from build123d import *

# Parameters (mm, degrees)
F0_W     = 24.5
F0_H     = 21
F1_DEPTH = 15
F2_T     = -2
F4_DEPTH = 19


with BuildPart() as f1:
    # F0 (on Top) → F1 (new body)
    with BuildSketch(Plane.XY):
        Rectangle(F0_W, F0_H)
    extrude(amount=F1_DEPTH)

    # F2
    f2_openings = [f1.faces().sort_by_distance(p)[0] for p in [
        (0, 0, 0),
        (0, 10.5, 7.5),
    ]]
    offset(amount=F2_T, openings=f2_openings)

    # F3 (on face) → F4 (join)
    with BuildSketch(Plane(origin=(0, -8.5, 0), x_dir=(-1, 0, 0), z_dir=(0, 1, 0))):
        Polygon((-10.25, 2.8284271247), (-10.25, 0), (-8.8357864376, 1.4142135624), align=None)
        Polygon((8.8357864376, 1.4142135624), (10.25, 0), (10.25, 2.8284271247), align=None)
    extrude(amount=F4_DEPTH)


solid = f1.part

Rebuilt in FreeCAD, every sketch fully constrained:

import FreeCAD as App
import Part
import Sketcher

V = App.Vector


def faces_at(feature, points):
    """Names of the faces that lie closest to the given points."""
    faces = feature.Shape.Faces
    near = lambda p: min(range(len(faces)), key=lambda i: faces[i].distToShape(Part.Vertex(*p))[0])
    return sorted({f"Face{near(p) + 1}" for p in points})

doc = App.newDocument("Part")
body = doc.addObject("PartDesign::Body", "Body")

# Sketch on XY plane
sketch1 = doc.addObject("Sketcher::SketchObject", "Sketch")
body.addObject(sketch1)
sketch1.AttachmentSupport = (doc.XY_Plane, [""])
sketch1.MapMode = "FlatFace"
sketch1.addGeometry(Part.LineSegment(V(-12, 10, 0), V(-12, -10, 0)), False)
sketch1.addGeometry(Part.LineSegment(V(-12, -10, 0), V(12, -10, 0)), False)
sketch1.addGeometry(Part.LineSegment(V(12, -10, 0), V(12, 10, 0)), False)
sketch1.addGeometry(Part.LineSegment(V(12, 10, 0), V(-12, 10, 0)), False)
sketch1.addConstraint(Sketcher.Constraint("Coincident", 0, 2, 1, 1))
sketch1.addConstraint(Sketcher.Constraint("Coincident", 1, 2, 2, 1))
sketch1.addConstraint(Sketcher.Constraint("Coincident", 2, 2, 3, 1))
sketch1.addConstraint(Sketcher.Constraint("Coincident", 3, 2, 0, 1))
sketch1.addConstraint(Sketcher.Constraint("Vertical", 0))
sketch1.addConstraint(Sketcher.Constraint("Horizontal", 1))
sketch1.addConstraint(Sketcher.Constraint("Vertical", 2))
sketch1.addConstraint(Sketcher.Constraint("Horizontal", 3))
sketch1.addConstraint(Sketcher.Constraint("Symmetric", 0, 2, 2, 2, -1, 1))
sketch1.addConstraint(Sketcher.Constraint("DistanceY", 0, 2, 0, 1, 21.0))
sketch1.addConstraint(Sketcher.Constraint("DistanceX", 1, 1, 1, 2, 24.5))
pad1 = doc.addObject("PartDesign::Pad", "Pad")
body.addObject(pad1)
pad1.Profile = sketch1
pad1.Length = 15
doc.recompute()

thickness = doc.addObject("PartDesign::Thickness", "Thickness")
body.addObject(thickness)
thickness.Base = (pad1, faces_at(pad1, [(0, 0, 0), (0, 10.5, 7.5)]))
thickness.Value = 2
thickness.Reversed = True
thickness.Join = "Arc"

# Sketch on XZ plane
sketch2 = doc.addObject("Sketcher::SketchObject", "Sketch001")
body.addObject(sketch2)
sketch2.AttachmentSupport = (doc.XZ_Plane, [""])
sketch2.MapMode = "FlatFace"
sketch2.AttachmentOffset = App.Placement(V(0, 0, 8.5), App.Rotation())
sketch2.addGeometry(Part.LineSegment(V(10.2, 2.8, 0), V(10.2, 0, 0)), False)
sketch2.addGeometry(Part.LineSegment(V(10.2, 0, 0), V(8.8, 1.4, 0)), False)
sketch2.addGeometry(Part.LineSegment(V(8.8, 1.4, 0), V(10.2, 2.8, 0)), False)
sketch2.addGeometry(Part.LineSegment(V(-8.8, 1.4, 0), V(-10.2, 0, 0)), False)
sketch2.addGeometry(Part.LineSegment(V(-10.2, 0, 0), V(-10.2, 2.8, 0)), False)
sketch2.addGeometry(Part.LineSegment(V(-10.2, 2.8, 0), V(-8.8, 1.4, 0)), False)
sketch2.addConstraint(Sketcher.Constraint("Coincident", 0, 2, 1, 1))
sketch2.addConstraint(Sketcher.Constraint("Coincident", 1, 2, 2, 1))
sketch2.addConstraint(Sketcher.Constraint("Coincident", 2, 2, 0, 1))
sketch2.addConstraint(Sketcher.Constraint("Coincident", 3, 2, 4, 1))
sketch2.addConstraint(Sketcher.Constraint("Coincident", 4, 2, 5, 1))
sketch2.addConstraint(Sketcher.Constraint("Coincident", 5, 2, 3, 1))
sketch2.addConstraint(Sketcher.Constraint("Vertical", 0))
sketch2.addConstraint(Sketcher.Constraint("Vertical", 4))
sketch2.addConstraint(Sketcher.Constraint("Symmetric", 0, 2, 3, 2, -1, 1))
sketch2.addConstraint(Sketcher.Constraint("Symmetric", 1, 2, 5, 2, -2))
sketch2.addConstraint(Sketcher.Constraint("PointOnObject", 0, 2, -1))
sketch2.addConstraint(Sketcher.Constraint("Perpendicular", 1, 2))
sketch2.addConstraint(Sketcher.Constraint("Parallel", 2, 3))
sketch2.addConstraint(Sketcher.Constraint("Perpendicular", 3, 5))
sketch2.addConstraint(Sketcher.Constraint("Distance", 1, 2.0))
sketch2.addConstraint(Sketcher.Constraint("DistanceX", 3, 2, 0, 2, 20.5))
pad2 = doc.addObject("PartDesign::Pad", "Pad001")
body.addObject(pad2)
pad2.Profile = sketch2
pad2.Length = 19
pad2.Reversed = True

doc.recompute()
